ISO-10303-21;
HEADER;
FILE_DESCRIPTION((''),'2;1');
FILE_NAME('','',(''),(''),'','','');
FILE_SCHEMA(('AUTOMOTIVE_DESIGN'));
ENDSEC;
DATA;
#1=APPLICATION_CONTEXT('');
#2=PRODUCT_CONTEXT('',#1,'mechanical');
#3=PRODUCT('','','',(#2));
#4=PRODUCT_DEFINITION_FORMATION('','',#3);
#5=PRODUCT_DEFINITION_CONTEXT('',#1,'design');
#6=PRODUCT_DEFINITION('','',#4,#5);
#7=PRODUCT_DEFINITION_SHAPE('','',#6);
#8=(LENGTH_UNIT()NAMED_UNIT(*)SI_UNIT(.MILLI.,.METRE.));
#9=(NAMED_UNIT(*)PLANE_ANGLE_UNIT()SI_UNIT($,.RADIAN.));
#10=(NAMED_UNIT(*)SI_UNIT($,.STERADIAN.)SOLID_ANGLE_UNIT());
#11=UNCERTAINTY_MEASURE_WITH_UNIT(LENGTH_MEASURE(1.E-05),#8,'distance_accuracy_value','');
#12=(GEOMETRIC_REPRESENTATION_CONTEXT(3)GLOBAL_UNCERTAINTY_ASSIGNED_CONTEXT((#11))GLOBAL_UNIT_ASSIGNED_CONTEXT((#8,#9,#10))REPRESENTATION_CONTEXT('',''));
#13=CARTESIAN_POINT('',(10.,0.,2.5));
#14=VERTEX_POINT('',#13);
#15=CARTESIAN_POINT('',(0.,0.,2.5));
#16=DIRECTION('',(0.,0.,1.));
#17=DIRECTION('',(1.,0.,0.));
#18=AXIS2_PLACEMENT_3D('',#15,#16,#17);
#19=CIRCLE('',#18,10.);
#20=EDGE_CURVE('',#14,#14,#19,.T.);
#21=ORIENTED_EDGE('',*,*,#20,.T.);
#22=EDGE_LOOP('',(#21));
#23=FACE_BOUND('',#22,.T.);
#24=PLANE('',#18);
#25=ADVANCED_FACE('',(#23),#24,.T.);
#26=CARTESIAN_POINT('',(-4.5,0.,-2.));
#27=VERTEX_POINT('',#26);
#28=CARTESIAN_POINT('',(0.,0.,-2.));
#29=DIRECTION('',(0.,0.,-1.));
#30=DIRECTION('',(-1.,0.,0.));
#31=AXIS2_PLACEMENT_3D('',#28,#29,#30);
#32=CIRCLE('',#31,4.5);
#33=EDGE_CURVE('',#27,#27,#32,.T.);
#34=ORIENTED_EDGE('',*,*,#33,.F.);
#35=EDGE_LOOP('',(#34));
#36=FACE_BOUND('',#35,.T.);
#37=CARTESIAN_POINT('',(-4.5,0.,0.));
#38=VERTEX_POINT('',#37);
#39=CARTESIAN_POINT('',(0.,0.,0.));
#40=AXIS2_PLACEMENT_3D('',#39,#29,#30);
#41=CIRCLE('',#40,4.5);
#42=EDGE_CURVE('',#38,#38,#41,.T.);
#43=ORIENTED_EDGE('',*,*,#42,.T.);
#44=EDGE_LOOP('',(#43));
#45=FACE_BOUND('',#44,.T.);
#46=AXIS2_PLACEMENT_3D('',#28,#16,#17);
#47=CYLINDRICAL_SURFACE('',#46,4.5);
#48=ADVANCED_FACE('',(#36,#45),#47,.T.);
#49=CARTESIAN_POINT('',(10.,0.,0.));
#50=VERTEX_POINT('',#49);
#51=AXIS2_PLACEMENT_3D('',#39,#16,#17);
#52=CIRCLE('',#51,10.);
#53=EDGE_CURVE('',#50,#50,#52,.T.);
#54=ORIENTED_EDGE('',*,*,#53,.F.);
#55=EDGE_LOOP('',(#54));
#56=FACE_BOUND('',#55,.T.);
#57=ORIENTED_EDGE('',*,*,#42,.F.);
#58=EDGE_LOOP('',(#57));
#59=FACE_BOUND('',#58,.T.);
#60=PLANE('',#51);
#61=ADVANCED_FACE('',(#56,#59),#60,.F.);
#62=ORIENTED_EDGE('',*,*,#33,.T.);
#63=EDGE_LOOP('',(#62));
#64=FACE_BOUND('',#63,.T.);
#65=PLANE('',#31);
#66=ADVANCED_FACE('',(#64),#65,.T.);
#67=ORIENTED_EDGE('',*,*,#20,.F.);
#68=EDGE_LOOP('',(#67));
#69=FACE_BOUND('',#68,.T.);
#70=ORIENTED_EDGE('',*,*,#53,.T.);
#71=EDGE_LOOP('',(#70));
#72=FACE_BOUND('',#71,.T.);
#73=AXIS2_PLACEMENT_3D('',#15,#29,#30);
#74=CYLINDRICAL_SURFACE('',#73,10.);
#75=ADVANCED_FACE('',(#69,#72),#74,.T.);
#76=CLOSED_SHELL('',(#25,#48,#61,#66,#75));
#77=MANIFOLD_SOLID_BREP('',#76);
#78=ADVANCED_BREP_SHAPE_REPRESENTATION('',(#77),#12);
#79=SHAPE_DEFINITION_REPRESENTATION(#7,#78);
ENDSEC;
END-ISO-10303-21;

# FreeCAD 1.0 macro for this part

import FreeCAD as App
import Part
import Sketcher

doc = App.newDocument("Part")
body = doc.addObject("PartDesign::Body", "Body")

# Sketch on XY plane
sketch1 = doc.addObject("Sketcher::SketchObject", "Sketch")
body.addObject(sketch1)
sketch1.AttachmentSupport = (doc.XY_Plane, [""])
sketch1.MapMode = "FlatFace"
sketch1.addGeometry(Part.Circle(App.Vector(0, 0, 0), App.Vector(0, 0, 1), 10), False)
sketch1.addConstraint([
    Sketcher.Constraint("Coincident", 0, 3, -1, 1),
    Sketcher.Constraint("Diameter", 0, 20.0),
])
pad1 = doc.addObject("PartDesign::Pad", "Pad")
body.addObject(pad1)
pad1.Profile = sketch1
pad1.Length = 2.5

# Sketch on XY plane
sketch2 = doc.addObject("Sketcher::SketchObject", "Sketch001")
body.addObject(sketch2)
sketch2.AttachmentSupport = (doc.XY_Plane, [""])
sketch2.MapMode = "FlatFace"
sketch2.addGeometry(Part.Circle(App.Vector(0, 0, 0), App.Vector(0, 0, 1), 4.5), False)
sketch2.addConstraint([
    Sketcher.Constraint("Coincident", 0, 3, -1, 1),
    Sketcher.Constraint("Diameter", 0, 9.0),
])
pad2 = doc.addObject("PartDesign::Pad", "Pad001")
body.addObject(pad2)
pad2.Profile = sketch2
pad2.Length = 2
pad2.Reversed = True

doc.recompute()
